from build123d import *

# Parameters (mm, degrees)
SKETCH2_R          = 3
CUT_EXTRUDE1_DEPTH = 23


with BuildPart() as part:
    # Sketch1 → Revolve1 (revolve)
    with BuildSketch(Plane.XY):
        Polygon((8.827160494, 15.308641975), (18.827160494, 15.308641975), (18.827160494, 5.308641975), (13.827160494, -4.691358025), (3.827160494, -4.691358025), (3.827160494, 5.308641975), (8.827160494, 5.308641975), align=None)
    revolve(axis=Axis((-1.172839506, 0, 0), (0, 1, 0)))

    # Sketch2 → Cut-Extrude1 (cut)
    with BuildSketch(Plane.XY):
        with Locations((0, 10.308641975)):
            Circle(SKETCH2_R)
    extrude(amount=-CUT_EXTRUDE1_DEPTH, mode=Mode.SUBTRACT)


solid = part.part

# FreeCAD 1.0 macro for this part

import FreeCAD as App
import Part
import Sketcher
from FreeCAD import Vector
Q = App.Units.Quantity


def add_polygon(sketch, points):
    """Adds a closed chain of lines whose ends are joined by coincident constraints."""
    first, n = sketch.GeometryCount, len(points)
    for a, b in zip(points, points[1:] + points[:1]):
        sketch.addGeometry(Part.LineSegment(App.Vector(*a, 0), App.Vector(*b, 0)), False)
    for i in range(n):
        sketch.addConstraint(Sketcher.Constraint("Coincident", first + i, 2, first + (i + 1) % n, 1))

doc = App.newDocument("Part")
body = doc.addObject("PartDesign::Body", "Body")

sketch1 = body.newObject("Sketcher::SketchObject", "Sketch")
sketch1.AttachmentSupport = (doc.getObject("XY_Plane"), [""])
sketch1.MapMode = "FlatFace"
add_polygon(sketch1, [(18.8, 15.3), (8.8, 15.3), (8.8, 5.3), (3.8, 5.3), (3.8, -4.7), (13.8, -4.7), (18.8, 5.3)])
sketch1.addGeometry(Part.LineSegment(Vector(-1.2, -4.7, 0), Vector(-1.2, 15.3, 0)), True)
sketch1.addConstraint([
    Sketcher.Constraint("Horizontal", 0),
    Sketcher.Constraint("Vertical", 1),
    Sketcher.Constraint("Horizontal", 2),
    Sketcher.Constraint("Vertical", 3),
    Sketcher.Constraint("Horizontal", 4),
    Sketcher.Constraint("Vertical", 6),
    Sketcher.Constraint("Vertical", 7),
    Sketcher.Constraint("Horizontal", 2, 2, 5, 2),
    Sketcher.Constraint("Horizontal", 4, 2, 7, 1),
    Sketcher.Constraint("Horizontal", 6, 2, 7, 2),
    Sketcher.Constraint("Equal", 0, 4),
    Sketcher.Constraint("Equal", 4, 1),
    Sketcher.Constraint("Equal", 1, 3),
    Sketcher.Constraint("DistanceX", 0, 2, 0, 1, Q("10 mm")),
    Sketcher.Constraint("DistanceX", 2, 2, 2, 1, Q("5 mm")),
    Sketcher.Constraint("DistanceX", 7, 1, 3, 2, Q("5 mm")),
    Sketcher.Constraint("DistanceX", -1, 1, 0, 2, Q("8.82716 mm")),
    Sketcher.Constraint("DistanceY", -1, 1, 0, 2, Q("15.308642 mm")),
])
revolution = body.newObject("PartDesign::Revolution", "Revolution")
revolution.Profile = sketch1
revolution.ReferenceAxis = (sketch1, ["Axis0"])
revolution.Angle = 360

sketch2 = body.newObject("Sketcher::SketchObject", "Sketch001")
sketch2.AttachmentSupport = (doc.getObject("XY_Plane"), [""])
sketch2.MapMode = "FlatFace"
sketch2.addGeometry(Part.Circle(Vector(0, 10.3, 0), Vector(0, 0, 1), 3), False)
sketch2.addConstraint([
    Sketcher.Constraint("PointOnObject", 0, 3, -2),
    Sketcher.Constraint("Diameter", 0, Q("6 mm")),
    Sketcher.Constraint("DistanceY", -1, 1, 0, 3, Q("10.308642 mm")),
])
pocket1 = body.newObject("PartDesign::Pocket", "Pocket")
pocket1.Profile = sketch2
pocket1.Length = 23

doc.recompute()
